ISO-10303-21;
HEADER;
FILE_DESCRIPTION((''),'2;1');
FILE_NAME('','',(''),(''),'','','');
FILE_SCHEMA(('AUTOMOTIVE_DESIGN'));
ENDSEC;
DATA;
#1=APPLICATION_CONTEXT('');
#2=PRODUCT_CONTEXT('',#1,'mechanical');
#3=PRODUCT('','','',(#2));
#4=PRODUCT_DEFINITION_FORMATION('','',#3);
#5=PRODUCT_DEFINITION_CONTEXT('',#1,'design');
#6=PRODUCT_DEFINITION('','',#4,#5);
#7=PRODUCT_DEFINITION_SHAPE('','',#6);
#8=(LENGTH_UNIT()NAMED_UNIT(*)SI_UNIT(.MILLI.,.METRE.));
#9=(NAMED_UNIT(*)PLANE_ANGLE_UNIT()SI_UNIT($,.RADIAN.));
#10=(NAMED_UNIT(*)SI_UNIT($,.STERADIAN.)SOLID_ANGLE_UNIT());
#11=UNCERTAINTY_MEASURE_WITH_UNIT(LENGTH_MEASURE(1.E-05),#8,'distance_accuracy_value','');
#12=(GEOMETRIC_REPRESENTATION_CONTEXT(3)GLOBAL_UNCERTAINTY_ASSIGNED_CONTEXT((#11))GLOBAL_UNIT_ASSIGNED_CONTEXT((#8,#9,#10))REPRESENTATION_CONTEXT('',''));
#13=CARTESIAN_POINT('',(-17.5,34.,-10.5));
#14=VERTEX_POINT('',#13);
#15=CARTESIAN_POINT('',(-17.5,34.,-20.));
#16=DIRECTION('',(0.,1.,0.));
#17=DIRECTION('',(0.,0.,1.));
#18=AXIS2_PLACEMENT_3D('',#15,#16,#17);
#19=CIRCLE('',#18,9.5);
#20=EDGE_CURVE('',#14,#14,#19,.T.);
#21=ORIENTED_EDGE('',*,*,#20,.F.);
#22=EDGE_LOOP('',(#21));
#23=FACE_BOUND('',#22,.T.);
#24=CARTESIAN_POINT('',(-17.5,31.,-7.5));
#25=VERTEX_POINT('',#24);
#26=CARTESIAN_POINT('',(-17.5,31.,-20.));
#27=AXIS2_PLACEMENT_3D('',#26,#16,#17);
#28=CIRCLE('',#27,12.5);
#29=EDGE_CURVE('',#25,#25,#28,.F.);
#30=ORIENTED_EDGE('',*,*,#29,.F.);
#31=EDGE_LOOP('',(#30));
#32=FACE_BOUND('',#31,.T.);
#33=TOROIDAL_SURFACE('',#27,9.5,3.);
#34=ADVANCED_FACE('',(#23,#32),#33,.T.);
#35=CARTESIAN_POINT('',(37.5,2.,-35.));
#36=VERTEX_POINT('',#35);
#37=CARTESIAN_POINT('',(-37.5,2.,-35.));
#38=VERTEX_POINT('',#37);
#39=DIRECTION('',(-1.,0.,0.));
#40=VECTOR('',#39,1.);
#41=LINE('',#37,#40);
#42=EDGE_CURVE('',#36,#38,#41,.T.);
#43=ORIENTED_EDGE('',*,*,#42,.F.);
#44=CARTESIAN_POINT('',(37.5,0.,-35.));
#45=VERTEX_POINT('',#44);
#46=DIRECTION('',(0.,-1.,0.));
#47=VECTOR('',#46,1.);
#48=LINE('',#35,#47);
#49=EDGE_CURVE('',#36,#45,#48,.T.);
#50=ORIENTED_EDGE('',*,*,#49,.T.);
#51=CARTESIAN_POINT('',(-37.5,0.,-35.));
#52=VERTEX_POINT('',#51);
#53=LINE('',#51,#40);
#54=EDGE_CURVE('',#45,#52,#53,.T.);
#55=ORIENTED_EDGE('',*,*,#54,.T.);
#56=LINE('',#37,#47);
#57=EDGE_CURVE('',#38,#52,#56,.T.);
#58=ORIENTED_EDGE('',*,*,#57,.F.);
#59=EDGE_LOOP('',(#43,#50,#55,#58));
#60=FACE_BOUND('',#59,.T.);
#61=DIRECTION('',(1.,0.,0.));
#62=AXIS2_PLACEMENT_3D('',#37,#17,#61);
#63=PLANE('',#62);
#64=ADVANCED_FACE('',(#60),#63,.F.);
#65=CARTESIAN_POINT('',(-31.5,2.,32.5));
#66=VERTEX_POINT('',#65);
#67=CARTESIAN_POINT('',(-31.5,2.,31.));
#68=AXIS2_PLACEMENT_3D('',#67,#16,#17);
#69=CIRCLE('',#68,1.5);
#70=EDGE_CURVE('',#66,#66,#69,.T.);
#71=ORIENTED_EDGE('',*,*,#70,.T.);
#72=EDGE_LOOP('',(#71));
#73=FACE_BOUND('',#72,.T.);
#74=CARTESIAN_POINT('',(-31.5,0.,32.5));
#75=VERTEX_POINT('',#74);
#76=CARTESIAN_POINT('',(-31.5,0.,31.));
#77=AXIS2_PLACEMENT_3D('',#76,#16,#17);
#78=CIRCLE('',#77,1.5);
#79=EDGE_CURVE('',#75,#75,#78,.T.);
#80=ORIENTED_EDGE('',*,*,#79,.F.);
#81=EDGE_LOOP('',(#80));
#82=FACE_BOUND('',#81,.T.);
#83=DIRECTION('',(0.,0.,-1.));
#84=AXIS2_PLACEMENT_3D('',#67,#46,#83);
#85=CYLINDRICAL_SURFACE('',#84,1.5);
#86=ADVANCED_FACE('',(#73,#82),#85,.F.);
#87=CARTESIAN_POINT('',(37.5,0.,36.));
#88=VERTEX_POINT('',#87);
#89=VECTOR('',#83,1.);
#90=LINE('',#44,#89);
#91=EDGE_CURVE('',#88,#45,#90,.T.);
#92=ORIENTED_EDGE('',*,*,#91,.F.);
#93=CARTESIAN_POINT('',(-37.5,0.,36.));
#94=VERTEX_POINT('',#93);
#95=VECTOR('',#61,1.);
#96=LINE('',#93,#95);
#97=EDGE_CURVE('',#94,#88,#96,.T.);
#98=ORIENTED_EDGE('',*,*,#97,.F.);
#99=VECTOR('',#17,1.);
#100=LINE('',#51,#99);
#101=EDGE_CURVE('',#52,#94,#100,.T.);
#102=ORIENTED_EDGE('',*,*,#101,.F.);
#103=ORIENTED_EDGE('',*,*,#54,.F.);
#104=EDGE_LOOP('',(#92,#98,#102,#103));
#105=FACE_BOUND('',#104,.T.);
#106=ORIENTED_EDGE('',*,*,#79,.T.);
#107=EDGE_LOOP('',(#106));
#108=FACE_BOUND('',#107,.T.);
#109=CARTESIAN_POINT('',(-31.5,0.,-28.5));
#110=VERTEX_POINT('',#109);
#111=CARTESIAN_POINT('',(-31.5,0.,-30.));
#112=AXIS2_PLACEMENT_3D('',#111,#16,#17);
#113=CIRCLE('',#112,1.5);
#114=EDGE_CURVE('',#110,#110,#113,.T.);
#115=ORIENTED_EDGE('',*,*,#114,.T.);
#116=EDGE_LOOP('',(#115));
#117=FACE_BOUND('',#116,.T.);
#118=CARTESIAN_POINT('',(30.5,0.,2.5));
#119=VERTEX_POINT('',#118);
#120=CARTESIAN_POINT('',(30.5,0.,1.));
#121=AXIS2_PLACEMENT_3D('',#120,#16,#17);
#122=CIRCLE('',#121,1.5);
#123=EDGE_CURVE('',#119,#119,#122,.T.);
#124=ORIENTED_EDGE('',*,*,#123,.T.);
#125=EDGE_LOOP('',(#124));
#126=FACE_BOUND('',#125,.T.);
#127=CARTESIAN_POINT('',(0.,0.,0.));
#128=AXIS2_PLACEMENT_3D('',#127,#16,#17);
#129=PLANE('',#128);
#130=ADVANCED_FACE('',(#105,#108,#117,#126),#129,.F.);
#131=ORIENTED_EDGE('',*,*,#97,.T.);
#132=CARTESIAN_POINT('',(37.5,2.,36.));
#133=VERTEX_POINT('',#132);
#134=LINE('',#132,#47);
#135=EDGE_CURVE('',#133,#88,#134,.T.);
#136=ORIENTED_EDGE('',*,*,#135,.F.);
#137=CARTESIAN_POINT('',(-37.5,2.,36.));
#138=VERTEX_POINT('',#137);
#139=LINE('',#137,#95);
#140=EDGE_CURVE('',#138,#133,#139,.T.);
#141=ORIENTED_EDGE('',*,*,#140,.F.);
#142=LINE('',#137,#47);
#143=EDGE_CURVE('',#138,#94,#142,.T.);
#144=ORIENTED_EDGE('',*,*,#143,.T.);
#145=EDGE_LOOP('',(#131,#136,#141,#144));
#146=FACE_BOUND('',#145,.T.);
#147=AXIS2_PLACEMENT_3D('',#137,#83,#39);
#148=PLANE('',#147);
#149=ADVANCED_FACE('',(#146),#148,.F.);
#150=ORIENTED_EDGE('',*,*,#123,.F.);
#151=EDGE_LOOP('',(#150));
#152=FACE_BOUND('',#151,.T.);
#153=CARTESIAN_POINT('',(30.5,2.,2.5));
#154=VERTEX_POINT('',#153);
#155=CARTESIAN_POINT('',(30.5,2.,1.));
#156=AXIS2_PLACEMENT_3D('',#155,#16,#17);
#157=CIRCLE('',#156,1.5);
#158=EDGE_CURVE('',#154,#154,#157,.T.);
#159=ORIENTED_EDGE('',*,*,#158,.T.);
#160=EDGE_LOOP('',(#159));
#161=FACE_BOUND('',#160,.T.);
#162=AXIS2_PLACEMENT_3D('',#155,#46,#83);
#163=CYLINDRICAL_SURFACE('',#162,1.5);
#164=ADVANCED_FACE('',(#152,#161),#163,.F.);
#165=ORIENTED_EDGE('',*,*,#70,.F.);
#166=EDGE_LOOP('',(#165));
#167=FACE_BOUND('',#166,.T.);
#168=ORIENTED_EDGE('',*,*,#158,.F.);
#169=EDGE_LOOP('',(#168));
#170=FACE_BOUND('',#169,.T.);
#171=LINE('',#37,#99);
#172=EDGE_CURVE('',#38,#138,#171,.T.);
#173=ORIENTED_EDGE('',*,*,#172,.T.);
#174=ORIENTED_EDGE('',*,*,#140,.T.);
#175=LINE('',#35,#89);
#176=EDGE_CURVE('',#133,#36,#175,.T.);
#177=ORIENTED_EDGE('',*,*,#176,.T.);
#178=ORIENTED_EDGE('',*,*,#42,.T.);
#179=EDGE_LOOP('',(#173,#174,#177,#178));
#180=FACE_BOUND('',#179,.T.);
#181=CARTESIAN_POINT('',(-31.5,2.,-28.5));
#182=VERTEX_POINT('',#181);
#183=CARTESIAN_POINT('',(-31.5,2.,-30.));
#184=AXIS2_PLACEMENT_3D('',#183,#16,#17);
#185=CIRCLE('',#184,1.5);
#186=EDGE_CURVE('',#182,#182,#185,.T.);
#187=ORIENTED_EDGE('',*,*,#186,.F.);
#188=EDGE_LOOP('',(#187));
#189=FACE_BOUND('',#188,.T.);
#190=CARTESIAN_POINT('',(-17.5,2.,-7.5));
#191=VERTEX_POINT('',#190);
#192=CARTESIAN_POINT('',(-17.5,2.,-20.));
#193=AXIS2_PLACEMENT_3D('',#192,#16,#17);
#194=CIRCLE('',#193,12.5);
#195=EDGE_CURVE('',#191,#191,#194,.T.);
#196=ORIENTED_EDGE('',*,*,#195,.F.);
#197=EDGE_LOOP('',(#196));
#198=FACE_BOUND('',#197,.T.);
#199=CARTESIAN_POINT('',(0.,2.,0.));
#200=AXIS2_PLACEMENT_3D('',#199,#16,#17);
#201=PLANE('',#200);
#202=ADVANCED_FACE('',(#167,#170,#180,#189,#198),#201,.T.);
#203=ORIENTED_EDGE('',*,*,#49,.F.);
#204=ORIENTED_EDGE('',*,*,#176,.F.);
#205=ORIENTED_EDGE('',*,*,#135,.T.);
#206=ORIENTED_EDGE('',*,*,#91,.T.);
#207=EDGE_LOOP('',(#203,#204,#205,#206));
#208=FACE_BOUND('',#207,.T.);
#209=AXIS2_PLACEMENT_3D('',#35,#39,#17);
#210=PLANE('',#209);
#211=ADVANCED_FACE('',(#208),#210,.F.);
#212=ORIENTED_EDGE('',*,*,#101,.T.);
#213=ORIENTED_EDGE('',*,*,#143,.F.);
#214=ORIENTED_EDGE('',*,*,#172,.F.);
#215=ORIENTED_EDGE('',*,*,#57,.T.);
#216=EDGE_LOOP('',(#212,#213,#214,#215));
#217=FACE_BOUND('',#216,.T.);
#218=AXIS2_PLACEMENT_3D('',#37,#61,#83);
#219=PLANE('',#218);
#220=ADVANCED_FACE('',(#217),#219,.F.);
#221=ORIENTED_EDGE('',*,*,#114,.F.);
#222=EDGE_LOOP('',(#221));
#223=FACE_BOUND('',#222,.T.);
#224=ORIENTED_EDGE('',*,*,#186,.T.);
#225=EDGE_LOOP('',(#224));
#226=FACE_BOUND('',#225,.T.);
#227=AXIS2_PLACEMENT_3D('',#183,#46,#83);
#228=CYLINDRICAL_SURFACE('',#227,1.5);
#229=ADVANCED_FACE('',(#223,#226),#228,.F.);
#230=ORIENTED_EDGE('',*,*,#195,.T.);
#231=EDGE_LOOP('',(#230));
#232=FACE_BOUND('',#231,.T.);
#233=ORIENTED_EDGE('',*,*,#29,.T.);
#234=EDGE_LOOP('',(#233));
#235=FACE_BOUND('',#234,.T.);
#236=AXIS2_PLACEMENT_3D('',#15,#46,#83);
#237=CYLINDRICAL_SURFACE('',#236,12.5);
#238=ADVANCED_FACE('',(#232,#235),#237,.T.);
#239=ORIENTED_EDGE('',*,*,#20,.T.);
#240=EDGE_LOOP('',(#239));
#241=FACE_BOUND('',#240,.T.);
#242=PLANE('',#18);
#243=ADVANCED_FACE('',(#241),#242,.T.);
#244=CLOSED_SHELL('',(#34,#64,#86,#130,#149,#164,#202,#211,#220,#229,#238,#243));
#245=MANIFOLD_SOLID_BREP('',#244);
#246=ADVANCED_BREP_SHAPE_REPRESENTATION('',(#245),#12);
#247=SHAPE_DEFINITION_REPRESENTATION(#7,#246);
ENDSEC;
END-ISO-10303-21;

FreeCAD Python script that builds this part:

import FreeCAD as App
import Part
import Sketcher

V = App.Vector
Q = App.Units.Quantity


def edges_at(feature, points):
    """Names of the edges that pass closest to the given points."""
    edges = feature.Shape.Edges
    near = lambda p: min(range(len(edges)), key=lambda i: edges[i].distToShape(Part.Vertex(*p))[0])
    return sorted({f"Edge{near(p) + 1}" for p in points})


def add_polygon(sketch, points):
    """Adds a closed chain of lines whose ends are joined by coincident constraints."""
    first, n = sketch.GeometryCount, len(points)
    for a, b in zip(points, points[1:] + points[:1]):
        sketch.addGeometry(Part.LineSegment(App.Vector(*a, 0), App.Vector(*b, 0)), False)
    for i in range(n):
        sketch.addConstraint(Sketcher.Constraint("Coincident", first + i, 2, first + (i + 1) % n, 1))

doc = App.newDocument("Part")
body = doc.addObject("PartDesign::Body", "Body")

# Sketch on XZ plane
sketch1 = body.newObject("Sketcher::SketchObject", "Sketch")
sketch1.AttachmentSupport = (doc.getObject("XZ_Plane"), [""])
sketch1.MapMode = "FlatFace"
add_polygon(sketch1, [(-37.5, -35), (-37.5, 36), (37.5, 36), (37.5, -35)])  # lines 0-3
sketch1.addGeometry(Part.Circle(V(-31.5, 31, 0), V(0, 0, 1), 1.5), False)  # 4
sketch1.addGeometry(Part.Circle(V(30.5, 1, 0), V(0, 0, 1), 1.5), False)  # 5
sketch1.addGeometry(Part.Circle(V(-31.5, -30, 0), V(0, 0, 1), 1.5), False)  # 6
sketch1.addConstraint([
    Sketcher.Constraint("Vertical", 0),
    Sketcher.Constraint("Horizontal", 1),
    Sketcher.Constraint("Vertical", 2),
    Sketcher.Constraint("Horizontal", 3),
    Sketcher.Constraint("Equal", 4, 5),
    Sketcher.Constraint("Equal", 5, 6),
    Sketcher.Constraint("Vertical", 4, 3, 6, 3),
    Sketcher.Constraint("Diameter", 4, Q("3 mm")),
    Sketcher.Constraint("DistanceX", 1, 1, 1, 2, Q("75 mm")),
    Sketcher.Constraint("DistanceY", 0, 1, 0, 2, Q("71 mm")),
    Sketcher.Constraint("DistanceY", -1, 1, 4, 3, Q("31 mm")),
    Sketcher.Constraint("DistanceY", -1, 1, 5, 3, Q("1 mm")),
    Sketcher.Constraint("DistanceY", 6, 3, -1, 1, Q("30 mm")),
    Sketcher.Constraint("DistanceY", -1, 1, 0, 2, Q("36 mm")),
    Sketcher.Constraint("DistanceX", 4, 3, 5, 3, Q("62 mm")),
    Sketcher.Constraint("DistanceX", 0, 2, 4, 3, Q("6 mm")),
    Sketcher.Constraint("DistanceX", 4, 3, -1, 1, Q("31.5 mm")),
])
pad1 = body.newObject("PartDesign::Pad", "Pad")
pad1.Profile = sketch1
pad1.Length = 2
pad1.Reversed = True

# Sketch on XZ plane
sketch2 = body.newObject("Sketcher::SketchObject", "Sketch001")
sketch2.AttachmentSupport = (doc.getObject("XZ_Plane"), [""])
sketch2.MapMode = "FlatFace"
sketch2.AttachmentOffset = App.Placement(V(0, 0, -2), App.Rotation())
sketch2.addGeometry(Part.Circle(V(-17.5, -20, 0), V(0, 0, 1), 12.5), False)
sketch2.addConstraint([
    Sketcher.Constraint("Diameter", 0, Q("25 mm")),
    Sketcher.Constraint("DistanceY", 0, 3, -1, 1, Q("20 mm")),
    Sketcher.Constraint("DistanceX", 0, 3, -1, 1, Q("17.5 mm")),
])
pad2 = body.newObject("PartDesign::Pad", "Pad001")
pad2.Profile = sketch2
pad2.Length = 32
pad2.Reversed = True
doc.recompute()

fillet = body.newObject("PartDesign::Fillet", "Fillet")
fillet.Base = (pad2, edges_at(pad2, [(-30, 34, -20)]))
fillet.Radius = 3

doc.recompute()
